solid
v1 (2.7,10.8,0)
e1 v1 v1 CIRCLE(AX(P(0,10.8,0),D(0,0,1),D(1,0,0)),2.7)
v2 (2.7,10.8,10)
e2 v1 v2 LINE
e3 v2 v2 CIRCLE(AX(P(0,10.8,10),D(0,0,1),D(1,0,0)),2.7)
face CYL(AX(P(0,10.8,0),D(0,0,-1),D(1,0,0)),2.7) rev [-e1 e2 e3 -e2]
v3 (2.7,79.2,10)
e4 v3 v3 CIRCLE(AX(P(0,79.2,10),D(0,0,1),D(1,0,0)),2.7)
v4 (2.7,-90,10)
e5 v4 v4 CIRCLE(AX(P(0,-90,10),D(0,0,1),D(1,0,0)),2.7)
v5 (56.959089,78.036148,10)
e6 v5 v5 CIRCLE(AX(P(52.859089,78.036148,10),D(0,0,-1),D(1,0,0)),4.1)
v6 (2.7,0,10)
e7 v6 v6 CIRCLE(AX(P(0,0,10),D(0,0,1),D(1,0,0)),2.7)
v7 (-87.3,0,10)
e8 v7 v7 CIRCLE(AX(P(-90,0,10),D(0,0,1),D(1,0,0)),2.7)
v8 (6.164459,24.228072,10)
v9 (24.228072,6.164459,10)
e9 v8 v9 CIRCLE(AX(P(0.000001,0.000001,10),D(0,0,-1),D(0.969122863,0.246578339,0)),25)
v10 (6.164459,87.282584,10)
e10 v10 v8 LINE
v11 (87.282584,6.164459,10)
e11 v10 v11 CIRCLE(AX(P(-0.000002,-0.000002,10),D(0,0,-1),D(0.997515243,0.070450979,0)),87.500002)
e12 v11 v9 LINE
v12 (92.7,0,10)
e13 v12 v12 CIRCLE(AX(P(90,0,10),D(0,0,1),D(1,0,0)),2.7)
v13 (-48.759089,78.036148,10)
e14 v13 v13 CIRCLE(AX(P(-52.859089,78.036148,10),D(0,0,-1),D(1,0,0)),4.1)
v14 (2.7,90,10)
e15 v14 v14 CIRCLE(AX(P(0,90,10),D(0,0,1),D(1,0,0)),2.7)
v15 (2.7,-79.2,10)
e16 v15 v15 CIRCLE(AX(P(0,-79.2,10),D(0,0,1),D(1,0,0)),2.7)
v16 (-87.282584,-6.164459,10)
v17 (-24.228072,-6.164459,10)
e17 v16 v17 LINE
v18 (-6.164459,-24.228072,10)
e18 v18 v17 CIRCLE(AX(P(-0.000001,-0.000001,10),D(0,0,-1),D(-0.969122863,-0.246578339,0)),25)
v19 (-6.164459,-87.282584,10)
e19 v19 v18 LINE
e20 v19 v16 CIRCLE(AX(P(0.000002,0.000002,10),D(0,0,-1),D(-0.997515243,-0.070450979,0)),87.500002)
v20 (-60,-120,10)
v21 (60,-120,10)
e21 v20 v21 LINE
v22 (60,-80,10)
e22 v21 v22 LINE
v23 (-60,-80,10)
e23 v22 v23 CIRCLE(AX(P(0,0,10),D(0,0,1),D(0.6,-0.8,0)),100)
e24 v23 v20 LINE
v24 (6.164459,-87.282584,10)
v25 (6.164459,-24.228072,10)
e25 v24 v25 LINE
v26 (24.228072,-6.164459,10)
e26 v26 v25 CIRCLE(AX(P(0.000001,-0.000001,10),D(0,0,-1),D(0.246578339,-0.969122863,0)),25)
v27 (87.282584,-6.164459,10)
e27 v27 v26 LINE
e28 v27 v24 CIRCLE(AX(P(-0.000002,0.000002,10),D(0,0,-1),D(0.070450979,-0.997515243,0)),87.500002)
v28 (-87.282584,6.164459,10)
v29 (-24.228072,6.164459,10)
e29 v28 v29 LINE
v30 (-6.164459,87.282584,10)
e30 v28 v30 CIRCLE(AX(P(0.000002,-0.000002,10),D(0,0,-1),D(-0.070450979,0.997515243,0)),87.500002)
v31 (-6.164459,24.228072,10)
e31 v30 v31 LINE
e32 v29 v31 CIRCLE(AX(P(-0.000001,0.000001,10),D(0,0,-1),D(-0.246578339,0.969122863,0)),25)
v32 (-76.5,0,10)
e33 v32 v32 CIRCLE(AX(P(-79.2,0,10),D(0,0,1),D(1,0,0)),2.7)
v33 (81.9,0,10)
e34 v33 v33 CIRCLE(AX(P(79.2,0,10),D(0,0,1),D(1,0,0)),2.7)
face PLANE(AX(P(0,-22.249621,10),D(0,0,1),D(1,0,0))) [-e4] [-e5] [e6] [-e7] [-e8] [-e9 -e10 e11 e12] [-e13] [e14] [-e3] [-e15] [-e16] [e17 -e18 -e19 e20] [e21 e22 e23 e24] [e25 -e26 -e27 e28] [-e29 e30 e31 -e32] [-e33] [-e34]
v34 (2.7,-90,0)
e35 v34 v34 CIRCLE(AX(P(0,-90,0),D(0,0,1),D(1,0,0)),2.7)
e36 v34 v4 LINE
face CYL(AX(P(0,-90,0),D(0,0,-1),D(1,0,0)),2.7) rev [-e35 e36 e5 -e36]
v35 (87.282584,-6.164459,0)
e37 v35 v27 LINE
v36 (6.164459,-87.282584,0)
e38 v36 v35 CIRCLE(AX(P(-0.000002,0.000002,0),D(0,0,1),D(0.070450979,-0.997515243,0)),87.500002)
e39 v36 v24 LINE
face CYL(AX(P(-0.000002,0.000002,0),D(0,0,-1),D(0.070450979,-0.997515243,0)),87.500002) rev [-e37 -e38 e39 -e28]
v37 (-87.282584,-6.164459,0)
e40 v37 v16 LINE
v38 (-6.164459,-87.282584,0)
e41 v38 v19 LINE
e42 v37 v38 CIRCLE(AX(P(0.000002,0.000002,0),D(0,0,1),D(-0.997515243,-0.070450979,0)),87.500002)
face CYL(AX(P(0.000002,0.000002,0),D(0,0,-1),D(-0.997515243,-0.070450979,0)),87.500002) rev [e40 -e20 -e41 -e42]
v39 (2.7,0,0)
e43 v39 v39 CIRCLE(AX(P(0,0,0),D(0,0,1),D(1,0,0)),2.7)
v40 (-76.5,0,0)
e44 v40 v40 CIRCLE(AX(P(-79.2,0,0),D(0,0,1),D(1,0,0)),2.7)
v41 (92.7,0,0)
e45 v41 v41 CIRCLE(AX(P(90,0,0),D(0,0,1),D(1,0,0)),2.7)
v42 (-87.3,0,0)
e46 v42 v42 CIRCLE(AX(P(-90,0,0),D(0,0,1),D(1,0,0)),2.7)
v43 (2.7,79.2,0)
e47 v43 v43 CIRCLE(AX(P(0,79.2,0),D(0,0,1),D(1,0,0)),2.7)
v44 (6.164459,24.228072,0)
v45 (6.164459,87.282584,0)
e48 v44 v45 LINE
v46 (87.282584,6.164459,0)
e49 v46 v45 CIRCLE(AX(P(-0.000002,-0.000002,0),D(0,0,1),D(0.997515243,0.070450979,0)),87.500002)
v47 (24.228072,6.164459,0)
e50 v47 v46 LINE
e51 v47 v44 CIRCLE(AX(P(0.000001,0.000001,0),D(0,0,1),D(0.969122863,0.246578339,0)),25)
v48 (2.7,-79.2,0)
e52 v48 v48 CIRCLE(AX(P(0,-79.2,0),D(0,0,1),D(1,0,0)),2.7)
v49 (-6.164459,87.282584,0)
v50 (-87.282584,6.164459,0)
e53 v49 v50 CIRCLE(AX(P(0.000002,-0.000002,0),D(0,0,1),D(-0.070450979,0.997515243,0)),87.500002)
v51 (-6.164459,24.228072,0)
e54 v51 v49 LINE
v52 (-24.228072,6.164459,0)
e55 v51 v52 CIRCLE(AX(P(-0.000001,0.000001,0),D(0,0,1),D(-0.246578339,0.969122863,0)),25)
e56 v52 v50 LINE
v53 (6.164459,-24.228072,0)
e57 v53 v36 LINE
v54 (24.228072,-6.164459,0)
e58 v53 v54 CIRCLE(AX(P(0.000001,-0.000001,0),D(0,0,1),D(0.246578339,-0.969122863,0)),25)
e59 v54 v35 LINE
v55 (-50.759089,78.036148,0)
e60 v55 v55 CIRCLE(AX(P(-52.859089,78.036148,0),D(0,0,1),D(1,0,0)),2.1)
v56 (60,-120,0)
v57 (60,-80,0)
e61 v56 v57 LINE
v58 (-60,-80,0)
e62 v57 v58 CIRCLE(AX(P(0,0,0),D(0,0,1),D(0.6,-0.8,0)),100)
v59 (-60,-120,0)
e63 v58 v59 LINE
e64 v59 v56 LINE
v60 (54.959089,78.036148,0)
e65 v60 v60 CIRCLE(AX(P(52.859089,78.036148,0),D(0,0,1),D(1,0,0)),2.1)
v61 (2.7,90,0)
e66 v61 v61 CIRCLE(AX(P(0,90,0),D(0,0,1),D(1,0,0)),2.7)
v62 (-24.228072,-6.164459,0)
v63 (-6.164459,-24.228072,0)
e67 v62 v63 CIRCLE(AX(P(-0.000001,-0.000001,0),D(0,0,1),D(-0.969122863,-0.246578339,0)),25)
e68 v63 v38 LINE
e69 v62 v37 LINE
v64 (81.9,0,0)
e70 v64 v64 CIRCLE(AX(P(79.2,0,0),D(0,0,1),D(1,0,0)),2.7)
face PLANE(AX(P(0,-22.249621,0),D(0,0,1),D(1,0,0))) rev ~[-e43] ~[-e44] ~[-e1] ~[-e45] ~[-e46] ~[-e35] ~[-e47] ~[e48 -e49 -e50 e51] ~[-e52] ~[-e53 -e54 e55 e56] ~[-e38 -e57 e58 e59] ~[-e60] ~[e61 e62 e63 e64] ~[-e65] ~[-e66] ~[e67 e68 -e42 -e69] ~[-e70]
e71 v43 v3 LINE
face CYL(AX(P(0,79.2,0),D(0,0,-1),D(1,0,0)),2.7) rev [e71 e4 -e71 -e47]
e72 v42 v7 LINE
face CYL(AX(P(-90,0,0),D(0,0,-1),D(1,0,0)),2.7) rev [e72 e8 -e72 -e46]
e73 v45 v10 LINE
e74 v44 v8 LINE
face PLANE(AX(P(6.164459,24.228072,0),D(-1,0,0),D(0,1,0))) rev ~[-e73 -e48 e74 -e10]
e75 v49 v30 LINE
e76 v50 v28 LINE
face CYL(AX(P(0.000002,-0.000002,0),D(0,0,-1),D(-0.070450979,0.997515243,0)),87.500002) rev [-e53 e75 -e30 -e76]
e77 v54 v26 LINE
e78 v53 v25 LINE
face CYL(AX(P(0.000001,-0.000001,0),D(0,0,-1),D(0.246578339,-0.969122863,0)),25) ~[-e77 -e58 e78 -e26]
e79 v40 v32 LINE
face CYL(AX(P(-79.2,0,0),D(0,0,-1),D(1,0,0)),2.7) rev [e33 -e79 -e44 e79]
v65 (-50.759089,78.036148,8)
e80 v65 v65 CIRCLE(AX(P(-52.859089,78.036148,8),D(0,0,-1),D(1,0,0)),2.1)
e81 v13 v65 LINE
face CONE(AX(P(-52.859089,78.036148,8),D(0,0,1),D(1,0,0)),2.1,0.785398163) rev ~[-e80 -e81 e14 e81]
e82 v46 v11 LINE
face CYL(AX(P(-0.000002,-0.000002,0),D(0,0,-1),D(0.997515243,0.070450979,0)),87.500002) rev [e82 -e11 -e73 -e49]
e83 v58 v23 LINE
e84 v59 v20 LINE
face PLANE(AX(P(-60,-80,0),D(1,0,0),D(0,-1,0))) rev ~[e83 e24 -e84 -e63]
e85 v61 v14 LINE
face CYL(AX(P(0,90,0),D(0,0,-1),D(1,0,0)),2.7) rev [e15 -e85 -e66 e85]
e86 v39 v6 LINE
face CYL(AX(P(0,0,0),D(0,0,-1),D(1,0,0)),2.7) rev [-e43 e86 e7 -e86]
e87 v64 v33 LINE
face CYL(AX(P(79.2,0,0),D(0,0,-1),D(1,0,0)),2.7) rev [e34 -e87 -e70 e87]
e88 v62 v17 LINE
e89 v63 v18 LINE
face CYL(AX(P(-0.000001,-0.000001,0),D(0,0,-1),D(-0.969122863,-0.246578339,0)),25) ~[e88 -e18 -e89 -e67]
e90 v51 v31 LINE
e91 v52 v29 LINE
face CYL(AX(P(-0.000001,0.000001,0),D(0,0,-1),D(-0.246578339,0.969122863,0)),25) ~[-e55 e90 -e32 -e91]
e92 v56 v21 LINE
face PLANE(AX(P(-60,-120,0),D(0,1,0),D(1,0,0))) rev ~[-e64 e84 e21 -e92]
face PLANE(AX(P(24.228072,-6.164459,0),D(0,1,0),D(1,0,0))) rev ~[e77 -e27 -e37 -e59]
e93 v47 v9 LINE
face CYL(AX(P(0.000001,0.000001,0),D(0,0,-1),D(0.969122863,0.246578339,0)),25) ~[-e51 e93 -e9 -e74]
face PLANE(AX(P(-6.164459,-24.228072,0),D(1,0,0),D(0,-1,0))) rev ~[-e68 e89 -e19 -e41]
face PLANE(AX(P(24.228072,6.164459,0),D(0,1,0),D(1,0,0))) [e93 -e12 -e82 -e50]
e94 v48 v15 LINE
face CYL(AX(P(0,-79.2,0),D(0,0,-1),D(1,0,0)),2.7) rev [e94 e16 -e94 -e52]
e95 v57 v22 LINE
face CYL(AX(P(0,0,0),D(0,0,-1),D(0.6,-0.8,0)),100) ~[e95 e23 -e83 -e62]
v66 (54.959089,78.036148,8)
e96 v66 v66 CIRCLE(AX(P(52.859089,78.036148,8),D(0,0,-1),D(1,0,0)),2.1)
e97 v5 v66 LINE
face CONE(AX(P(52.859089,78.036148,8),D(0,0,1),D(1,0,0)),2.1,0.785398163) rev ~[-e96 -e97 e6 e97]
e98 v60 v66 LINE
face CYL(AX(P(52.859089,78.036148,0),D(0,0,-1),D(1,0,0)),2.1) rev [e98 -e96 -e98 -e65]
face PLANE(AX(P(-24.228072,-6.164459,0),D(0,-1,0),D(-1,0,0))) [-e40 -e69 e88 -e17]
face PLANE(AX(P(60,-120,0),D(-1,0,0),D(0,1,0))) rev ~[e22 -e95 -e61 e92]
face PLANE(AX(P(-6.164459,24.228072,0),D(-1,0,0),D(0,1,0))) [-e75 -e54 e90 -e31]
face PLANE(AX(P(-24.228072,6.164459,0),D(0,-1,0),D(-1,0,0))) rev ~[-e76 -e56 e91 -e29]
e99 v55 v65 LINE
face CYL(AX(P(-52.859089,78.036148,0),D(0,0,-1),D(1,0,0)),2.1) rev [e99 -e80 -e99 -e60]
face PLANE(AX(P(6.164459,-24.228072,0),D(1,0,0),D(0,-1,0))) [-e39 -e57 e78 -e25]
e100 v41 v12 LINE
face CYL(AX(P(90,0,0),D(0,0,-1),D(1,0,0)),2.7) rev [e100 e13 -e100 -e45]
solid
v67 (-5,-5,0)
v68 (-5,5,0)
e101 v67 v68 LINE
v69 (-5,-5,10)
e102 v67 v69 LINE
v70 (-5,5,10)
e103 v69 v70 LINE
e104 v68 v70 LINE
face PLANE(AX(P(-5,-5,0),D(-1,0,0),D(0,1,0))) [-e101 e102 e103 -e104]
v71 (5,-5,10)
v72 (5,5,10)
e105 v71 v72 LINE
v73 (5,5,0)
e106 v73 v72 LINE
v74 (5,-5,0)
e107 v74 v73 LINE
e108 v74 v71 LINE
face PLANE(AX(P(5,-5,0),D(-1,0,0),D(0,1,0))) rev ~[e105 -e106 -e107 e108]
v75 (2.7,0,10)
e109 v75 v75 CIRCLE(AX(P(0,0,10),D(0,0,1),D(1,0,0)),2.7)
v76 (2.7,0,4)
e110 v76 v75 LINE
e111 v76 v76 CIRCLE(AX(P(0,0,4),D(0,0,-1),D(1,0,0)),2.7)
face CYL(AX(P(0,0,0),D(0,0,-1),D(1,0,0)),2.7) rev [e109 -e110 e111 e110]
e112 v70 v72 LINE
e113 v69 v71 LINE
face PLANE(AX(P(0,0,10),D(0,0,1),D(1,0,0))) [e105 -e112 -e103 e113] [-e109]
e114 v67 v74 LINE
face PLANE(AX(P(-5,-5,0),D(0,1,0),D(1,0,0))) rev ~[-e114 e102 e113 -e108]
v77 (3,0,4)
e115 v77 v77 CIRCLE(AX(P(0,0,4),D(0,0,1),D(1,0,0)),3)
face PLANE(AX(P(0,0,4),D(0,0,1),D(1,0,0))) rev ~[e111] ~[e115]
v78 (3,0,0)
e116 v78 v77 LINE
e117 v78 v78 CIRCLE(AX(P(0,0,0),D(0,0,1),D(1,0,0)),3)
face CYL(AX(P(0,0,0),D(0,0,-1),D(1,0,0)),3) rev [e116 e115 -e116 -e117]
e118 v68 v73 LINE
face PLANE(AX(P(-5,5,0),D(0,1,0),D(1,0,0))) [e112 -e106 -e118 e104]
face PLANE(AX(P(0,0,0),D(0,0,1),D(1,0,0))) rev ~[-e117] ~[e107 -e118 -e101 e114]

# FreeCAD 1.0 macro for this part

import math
import FreeCAD as App
import Part
import Sketcher

V = App.Vector


def edges_at(feature, points):
    """Names of the edges that pass closest to the given points."""
    edges = feature.Shape.Edges
    near = lambda p: min(range(len(edges)), key=lambda i: edges[i].distToShape(Part.Vertex(*p))[0])
    return sorted({f"Edge{near(p) + 1}" for p in points})


def add_polygon(sketch, points):
    """Adds a closed chain of lines whose ends are joined by coincident constraints."""
    first, n = sketch.GeometryCount, len(points)
    for a, b in zip(points, points[1:] + points[:1]):
        sketch.addGeometry(Part.LineSegment(App.Vector(*a, 0), App.Vector(*b, 0)), False)
    for i in range(n):
        sketch.addConstraint(Sketcher.Constraint("Coincident", first + i, 2, first + (i + 1) % n, 1))

doc = App.newDocument("Part")
params = doc.addObject("Spreadsheet::Sheet", "Params")
for row, (alias, value) in enumerate([
    ("sketch1_diameter", "5.4 mm"),
    ("sketch1_width", "10 mm"),
    ("pad1_length", "10 mm"),
    ("sketch2_diameter", "6 mm"),
    ("pocket1_length", "4 mm"),
    ("sketch3_radius", "100 mm"),
    ("sketch3_diameter", "5.4 mm"),
    ("sketch3_width", "120 mm"),
    ("sketch3_height", "40 mm"),
    ("pad2_length", "10 mm"),
    ("sketch4_radius", "25 mm"),
    ("sketch5_diameter", "4.2 mm"),
    ("chamfer_size", "2 mm"),
], start=1):
    params.set(f"A{row}", alias)
    params.set(f"B{row}", "=" + value)
    params.setAlias(f"B{row}", alias)

body = doc.addObject("PartDesign::Body", "Body")

# Sketch on XY plane
sketch1 = doc.addObject("Sketcher::SketchObject", "Sketch")
body.addObject(sketch1)
sketch1.AttachmentSupport = (doc.XY_Plane, [""])
sketch1.MapMode = "FlatFace"
add_polygon(sketch1, [(-5, 5), (-5, -5), (5, -5), (5, 5)])  # lines 0-3
sketch1.addGeometry(Part.Circle(V(0, 0, 0), V(0, 0, 1), 2.7), False)  # 4
sketch1.addConstraint([
    Sketcher.Constraint("Vertical", 0),
    Sketcher.Constraint("Horizontal", 1),
    Sketcher.Constraint("Vertical", 2),
    Sketcher.Constraint("Horizontal", 3),
    Sketcher.Constraint("Coincident", 4, 3, -1, 1),
    Sketcher.Constraint("Symmetric", 0, 2, 2, 2, -1, 1),
    Sketcher.Constraint("Equal", 3, 0),
    Sketcher.Constraint("Diameter", 4, 5.4),
    Sketcher.Constraint("DistanceX", 1, 1, 1, 2, 10.0),
])
sketch1.setExpression("Constraints[11]", "Params.sketch1_diameter")
sketch1.setExpression("Constraints[12]", "Params.sketch1_width")
pad1 = doc.addObject("PartDesign::Pad", "Pad")
body.addObject(pad1)
pad1.Profile = sketch1
pad1.setExpression("Length", "Params.pad1_length")

# Sketch on XY plane
sketch2 = doc.addObject("Sketcher::SketchObject", "Sketch001")
body.addObject(sketch2)
sketch2.AttachmentSupport = (doc.XY_Plane, [""])
sketch2.MapMode = "FlatFace"
sketch2.addGeometry(Part.Circle(V(0, 0, 0), V(0, 0, 1), 3), False)
sketch2.addConstraint([
    Sketcher.Constraint("Coincident", 0, 3, -1, 1),
    Sketcher.Constraint("Diameter", 0, 6.0),
])
sketch2.setExpression("Constraints[1]", "Params.sketch2_diameter")
pocket1 = doc.addObject("PartDesign::Pocket", "Pocket")
body.addObject(pocket1)
pocket1.Profile = sketch2
pocket1.setExpression("Length", "Params.pocket1_length")
pocket1.Reversed = True
body2 = doc.addObject("PartDesign::Body", "Body001")

# Sketch on XY plane
sketch3 = doc.addObject("Sketcher::SketchObject", "Sketch002")
body2.addObject(sketch3)
sketch3.AttachmentSupport = (doc.getObject("XY_Plane001"), [""])
sketch3.MapMode = "FlatFace"
sketch3.addGeometry([
    Part.LineSegment(V(-60, -80, 0), V(-60, -120, 0)),  # 0
    Part.LineSegment(V(-60, -120, 0), V(60, -120, 0)),  # 1
    Part.LineSegment(V(60, -120, 0), V(60, -80, 0)),  # 2
    Part.ArcOfCircle(Part.Circle(V(0, 0, 0), V(0, 0, 1), 100), math.radians(-53), math.radians(233)),  # 3
    Part.Circle(V(0, -90, 0), V(0, 0, 1), 2.7),  # 4
    Part.Circle(V(0, -79.2, 0), V(0, 0, 1), 2.7),  # 5
    Part.Circle(V(-90, 0, 0), V(0, 0, 1), 2.7),  # 6
    Part.Circle(V(-79.2, 0, 0), V(0, 0, 1), 2.7),  # 7
    Part.Circle(V(0, 0, 0), V(0, 0, 1), 2.7),  # 8
    Part.Circle(V(79.2, 0, 0), V(0, 0, 1), 2.7),  # 9
    Part.Circle(V(90, 0, 0), V(0, 0, 1), 2.7),  # 10
    Part.Circle(V(0, 10.8, 0), V(0, 0, 1), 2.7),  # 11
    Part.Circle(V(0, 79.2, 0), V(0, 0, 1), 2.7),  # 12
    Part.Circle(V(0, 90, 0), V(0, 0, 1), 2.7),  # 13
], False)
sketch3.addConstraint([
    Sketcher.Constraint("Coincident", 0, 2, 1, 1),
    Sketcher.Constraint("Coincident", 1, 2, 2, 1),
    Sketcher.Constraint("Coincident", 2, 2, 3, 1),
    Sketcher.Constraint("Coincident", 3, 2, 0, 1),
    Sketcher.Constraint("Vertical", 0),
    Sketcher.Constraint("Horizontal", 1),
    Sketcher.Constraint("Vertical", 2),
    Sketcher.Constraint("Coincident", 3, 3, -1, 1),
    Sketcher.Constraint("Coincident", 8, 3, -1, 1),
    Sketcher.Constraint("Equal", 4, 5),
    Sketcher.Constraint("Equal", 5, 6),
    Sketcher.Constraint("Equal", 6, 7),
    Sketcher.Constraint("Equal", 7, 8),
    Sketcher.Constraint("Equal", 8, 9),
    Sketcher.Constraint("Equal", 9, 10),
    Sketcher.Constraint("Equal", 10, 11),
    Sketcher.Constraint("Equal", 11, 12),
    Sketcher.Constraint("Equal", 12, 13),
    Sketcher.Constraint("Symmetric", 7, 3, 9, 3, -1, 1),
    Sketcher.Constraint("Symmetric", 6, 3, 10, 3, -1, 1),
    Sketcher.Constraint("Symmetric", 5, 3, 12, 3, -1, 1),
    Sketcher.Constraint("Symmetric", 4, 3, 13, 3, -1, 1),
    Sketcher.Constraint("PointOnObject", 4, 3, -2),
    Sketcher.Constraint("PointOnObject", 5, 3, -2),
    Sketcher.Constraint("PointOnObject", 6, 3, -1),
    Sketcher.Constraint("PointOnObject", 7, 3, -1),
    Sketcher.Constraint("PointOnObject", 11, 3, -2),
    Sketcher.Constraint("Horizontal", 2, 2, 3, 2),
    Sketcher.Constraint("Radius", 3, 100.0),
    Sketcher.Constraint("Diameter", 4, 5.4),
    Sketcher.Constraint("DistanceX", 1, 1, 1, 2, 120.0),
    Sketcher.Constraint("DistanceY", 0, 2, 0, 1, 40.0),
    Sketcher.Constraint("DistanceY", 4, 3, -1, 1, 90.0),
    Sketcher.Constraint("DistanceX", 6, 3, -1, 1, 90.0),
    Sketcher.Constraint("DistanceY", 5, 3, 11, 3, 90.0),
    Sketcher.Constraint("DistanceY", 5, 3, -1, 1, 79.2),
    Sketcher.Constraint("DistanceX", 7, 3, -1, 1, 79.2),
])
sketch3.setExpression("Constraints[28]", "Params.sketch3_radius")
sketch3.setExpression("Constraints[29]", "Params.sketch3_diameter")
sketch3.setExpression("Constraints[30]", "Params.sketch3_width")
sketch3.setExpression("Constraints[31]", "Params.sketch3_height")
pad2 = doc.addObject("PartDesign::Pad", "Pad001")
body2.addObject(pad2)
pad2.Profile = sketch3
pad2.setExpression("Length", "Params.pad2_length")

# Sketch on XY plane
sketch4 = doc.addObject("Sketcher::SketchObject", "Sketch003")
body2.addObject(sketch4)
sketch4.AttachmentSupport = (doc.getObject("XY_Plane001"), [""])
sketch4.MapMode = "FlatFace"
sketch4.addGeometry([
    Part.ArcOfCircle(Part.Circle(V(0, 0, 0), V(0, 0, 1), 25), math.radians(14), math.radians(76)),
    Part.LineSegment(V(24, 6, 0), V(87, 6, 0)),
    Part.ArcOfCircle(Part.Circle(V(0, 0, 0), V(0, 0, 1), 88), math.radians(4), math.radians(86)),
    Part.LineSegment(V(6, 87, 0), V(6, 24, 0)),
], False)
sketch4.addConstraint([
    Sketcher.Constraint("Coincident", 0, 1, 1, 1),
    Sketcher.Constraint("Coincident", 1, 2, 2, 1),
    Sketcher.Constraint("Coincident", 2, 2, 3, 1),
    Sketcher.Constraint("Coincident", 3, 2, 0, 2),
    Sketcher.Constraint("Horizontal", 1),
    Sketcher.Constraint("Vertical", 3),
    Sketcher.Constraint("Coincident", 0, 3, -1, 1),
    Sketcher.Constraint("Coincident", 2, 3, -1, 1),
    Sketcher.Constraint("Equal", 1, 3),
    Sketcher.Constraint("Radius", 0, 25.0),
    Sketcher.Constraint("Radius", 2, 87.500002),
    Sketcher.Constraint("DistanceX", 1, 1, 1, 2, 63.054512),
])
sketch4.setExpression("Constraints[9]", "Params.sketch4_radius")
pocket2 = doc.addObject("PartDesign::Pocket", "Pocket001")
body2.addObject(pocket2)
pocket2.Profile = sketch4
pocket2.Type = "ThroughAll"
pocket2.Reversed = True
doc.recompute()

polarpattern = doc.addObject("PartDesign::PolarPattern", "PolarPattern")
body2.addObject(polarpattern)
polarpattern.Originals = [pocket2]
polarpattern.Axis = (doc.getObject("Z_Axis001"), [""])
polarpattern.Angle = 360
polarpattern.Occurrences = 4
body2.Tip = polarpattern

# Sketch on XY plane
sketch5 = doc.addObject("Sketcher::SketchObject", "Sketch004")
body2.addObject(sketch5)
sketch5.AttachmentSupport = (doc.getObject("XY_Plane001"), [""])
sketch5.MapMode = "FlatFace"
sketch5.addGeometry([
    Part.Circle(V(52.9, 78, 0), V(0, 0, 1), 2.1),
    Part.Circle(V(-52.9, 78, 0), V(0, 0, 1), 2.1),
], False)
sketch5.addConstraint([
    Sketcher.Constraint("Equal", 0, 1),
    Sketcher.Constraint("Symmetric", 0, 3, 1, 3, -2),
    Sketcher.Constraint("Diameter", 0, 4.2),
    Sketcher.Constraint("DistanceX", -1, 1, 0, 3, 52.859089),
    Sketcher.Constraint("DistanceY", -1, 1, 0, 3, 78.036148),
])
sketch5.setExpression("Constraints[2]", "Params.sketch5_diameter")
pocket3 = doc.addObject("PartDesign::Pocket", "Pocket002")
body2.addObject(pocket3)
pocket3.Profile = sketch5
pocket3.Type = "ThroughAll"
pocket3.Reversed = True
doc.recompute()

chamfer = doc.addObject("PartDesign::Chamfer", "Chamfer")
body2.addObject(chamfer)
chamfer.Base = (pocket3, edges_at(pocket3, [(50.759, 78.036, 10), (-54.959, 78.036, 10)]))
chamfer.setExpression("Size", "Params.chamfer_size")

doc.recompute()
